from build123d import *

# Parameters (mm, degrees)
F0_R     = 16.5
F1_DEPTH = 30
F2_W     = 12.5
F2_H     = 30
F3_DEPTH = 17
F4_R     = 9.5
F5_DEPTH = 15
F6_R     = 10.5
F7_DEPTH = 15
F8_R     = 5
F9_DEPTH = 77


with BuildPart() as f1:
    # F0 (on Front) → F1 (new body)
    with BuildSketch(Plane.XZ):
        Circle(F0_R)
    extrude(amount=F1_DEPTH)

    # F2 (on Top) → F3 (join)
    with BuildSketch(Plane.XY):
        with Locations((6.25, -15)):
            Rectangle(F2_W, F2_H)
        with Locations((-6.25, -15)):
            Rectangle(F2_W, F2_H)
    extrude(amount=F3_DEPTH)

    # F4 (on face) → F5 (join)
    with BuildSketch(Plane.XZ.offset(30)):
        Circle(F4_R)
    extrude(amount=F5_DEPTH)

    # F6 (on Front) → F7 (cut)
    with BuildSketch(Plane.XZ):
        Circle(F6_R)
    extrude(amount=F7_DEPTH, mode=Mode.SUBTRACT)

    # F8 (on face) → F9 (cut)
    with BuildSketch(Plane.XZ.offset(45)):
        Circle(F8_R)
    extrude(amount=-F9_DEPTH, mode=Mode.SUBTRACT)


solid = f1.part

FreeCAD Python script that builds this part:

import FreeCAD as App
import Part
import Sketcher


def add_polygon(sketch, points):
    """Adds a closed chain of lines whose ends are joined by coincident constraints."""
    first, n = sketch.GeometryCount, len(points)
    for a, b in zip(points, points[1:] + points[:1]):
        sketch.addGeometry(Part.LineSegment(App.Vector(*a, 0), App.Vector(*b, 0)), False)
    for i in range(n):
        sketch.addConstraint(Sketcher.Constraint("Coincident", first + i, 2, first + (i + 1) % n, 1))

doc = App.newDocument("Part")
body = doc.addObject("PartDesign::Body", "Body")

# Sketch on XZ plane
sketch1 = doc.addObject("Sketcher::SketchObject", "Sketch")
body.addObject(sketch1)
sketch1.AttachmentSupport = (doc.XZ_Plane, [""])
sketch1.MapMode = "FlatFace"
sketch1.addGeometry(Part.Circle(App.Vector(0, 0, 0), App.Vector(0, 0, 1), 16), False)
sketch1.addConstraint([
    Sketcher.Constraint("Coincident", 0, 3, -1, 1),
    Sketcher.Constraint("Diameter", 0, 33.0),
])
pad1 = doc.addObject("PartDesign::Pad", "Pad")
body.addObject(pad1)
pad1.Profile = sketch1
pad1.Length = 30

# Sketch on XY plane
sketch2 = doc.addObject("Sketcher::SketchObject", "Sketch001")
body.addObject(sketch2)
sketch2.AttachmentSupport = (doc.XY_Plane, [""])
sketch2.MapMode = "FlatFace"
add_polygon(sketch2, [(12, -30), (12, 0), (-12, 0), (-12, -30)])  # lines 0-3
sketch2.addConstraint([
    Sketcher.Constraint("Vertical", 0),
    Sketcher.Constraint("Horizontal", 1),
    Sketcher.Constraint("Vertical", 2),
    Sketcher.Constraint("Horizontal", 3),
    Sketcher.Constraint("Symmetric", 0, 2, 1, 2, -1, 1),
    Sketcher.Constraint("DistanceX", 1, 2, 1, 1, 25.0),
    Sketcher.Constraint("DistanceY", 0, 1, 0, 2, 30.0),
])
pad2 = doc.addObject("PartDesign::Pad", "Pad001")
body.addObject(pad2)
pad2.Profile = sketch2
pad2.Length = 17

# Sketch on XZ plane
sketch3 = doc.addObject("Sketcher::SketchObject", "Sketch002")
body.addObject(sketch3)
sketch3.AttachmentSupport = (doc.XZ_Plane, [""])
sketch3.MapMode = "FlatFace"
sketch3.AttachmentOffset = App.Placement(App.Vector(0, 0, 30), App.Rotation())
sketch3.addGeometry(Part.Circle(App.Vector(0, 0, 0), App.Vector(0, 0, 1), 10), False)
sketch3.addConstraint([
    Sketcher.Constraint("Coincident", 0, 3, -1, 1),
    Sketcher.Constraint("Diameter", 0, 19.0),
])
pad3 = doc.addObject("PartDesign::Pad", "Pad002")
body.addObject(pad3)
pad3.Profile = sketch3
pad3.Length = 15

# Sketch on XZ plane
sketch4 = doc.addObject("Sketcher::SketchObject", "Sketch003")
body.addObject(sketch4)
sketch4.AttachmentSupport = (doc.XZ_Plane, [""])
sketch4.MapMode = "FlatFace"
sketch4.addGeometry(Part.Circle(App.Vector(0, 0, 0), App.Vector(0, 0, 1), 10), False)
sketch4.addConstraint([
    Sketcher.Constraint("Coincident", 0, 3, -1, 1),
    Sketcher.Constraint("Diameter", 0, 21.0),
])
pocket1 = doc.addObject("PartDesign::Pocket", "Pocket")
body.addObject(pocket1)
pocket1.Profile = sketch4
pocket1.Length = 15
pocket1.Reversed = True

# Sketch on XZ plane
sketch5 = doc.addObject("Sketcher::SketchObject", "Sketch004")
body.addObject(sketch5)
sketch5.AttachmentSupport = (doc.XZ_Plane, [""])
sketch5.MapMode = "FlatFace"
sketch5.AttachmentOffset = App.Placement(App.Vector(0, 0, 45), App.Rotation())
sketch5.addGeometry(Part.Circle(App.Vector(0, 0, 0), App.Vector(0, 0, 1), 5), False)
sketch5.addConstraint([
    Sketcher.Constraint("Coincident", 0, 3, -1, 1),
    Sketcher.Constraint("Diameter", 0, 10.0),
])
pocket2 = doc.addObject("PartDesign::Pocket", "Pocket001")
body.addObject(pocket2)
pocket2.Profile = sketch5
pocket2.Length = 77

doc.recompute()
